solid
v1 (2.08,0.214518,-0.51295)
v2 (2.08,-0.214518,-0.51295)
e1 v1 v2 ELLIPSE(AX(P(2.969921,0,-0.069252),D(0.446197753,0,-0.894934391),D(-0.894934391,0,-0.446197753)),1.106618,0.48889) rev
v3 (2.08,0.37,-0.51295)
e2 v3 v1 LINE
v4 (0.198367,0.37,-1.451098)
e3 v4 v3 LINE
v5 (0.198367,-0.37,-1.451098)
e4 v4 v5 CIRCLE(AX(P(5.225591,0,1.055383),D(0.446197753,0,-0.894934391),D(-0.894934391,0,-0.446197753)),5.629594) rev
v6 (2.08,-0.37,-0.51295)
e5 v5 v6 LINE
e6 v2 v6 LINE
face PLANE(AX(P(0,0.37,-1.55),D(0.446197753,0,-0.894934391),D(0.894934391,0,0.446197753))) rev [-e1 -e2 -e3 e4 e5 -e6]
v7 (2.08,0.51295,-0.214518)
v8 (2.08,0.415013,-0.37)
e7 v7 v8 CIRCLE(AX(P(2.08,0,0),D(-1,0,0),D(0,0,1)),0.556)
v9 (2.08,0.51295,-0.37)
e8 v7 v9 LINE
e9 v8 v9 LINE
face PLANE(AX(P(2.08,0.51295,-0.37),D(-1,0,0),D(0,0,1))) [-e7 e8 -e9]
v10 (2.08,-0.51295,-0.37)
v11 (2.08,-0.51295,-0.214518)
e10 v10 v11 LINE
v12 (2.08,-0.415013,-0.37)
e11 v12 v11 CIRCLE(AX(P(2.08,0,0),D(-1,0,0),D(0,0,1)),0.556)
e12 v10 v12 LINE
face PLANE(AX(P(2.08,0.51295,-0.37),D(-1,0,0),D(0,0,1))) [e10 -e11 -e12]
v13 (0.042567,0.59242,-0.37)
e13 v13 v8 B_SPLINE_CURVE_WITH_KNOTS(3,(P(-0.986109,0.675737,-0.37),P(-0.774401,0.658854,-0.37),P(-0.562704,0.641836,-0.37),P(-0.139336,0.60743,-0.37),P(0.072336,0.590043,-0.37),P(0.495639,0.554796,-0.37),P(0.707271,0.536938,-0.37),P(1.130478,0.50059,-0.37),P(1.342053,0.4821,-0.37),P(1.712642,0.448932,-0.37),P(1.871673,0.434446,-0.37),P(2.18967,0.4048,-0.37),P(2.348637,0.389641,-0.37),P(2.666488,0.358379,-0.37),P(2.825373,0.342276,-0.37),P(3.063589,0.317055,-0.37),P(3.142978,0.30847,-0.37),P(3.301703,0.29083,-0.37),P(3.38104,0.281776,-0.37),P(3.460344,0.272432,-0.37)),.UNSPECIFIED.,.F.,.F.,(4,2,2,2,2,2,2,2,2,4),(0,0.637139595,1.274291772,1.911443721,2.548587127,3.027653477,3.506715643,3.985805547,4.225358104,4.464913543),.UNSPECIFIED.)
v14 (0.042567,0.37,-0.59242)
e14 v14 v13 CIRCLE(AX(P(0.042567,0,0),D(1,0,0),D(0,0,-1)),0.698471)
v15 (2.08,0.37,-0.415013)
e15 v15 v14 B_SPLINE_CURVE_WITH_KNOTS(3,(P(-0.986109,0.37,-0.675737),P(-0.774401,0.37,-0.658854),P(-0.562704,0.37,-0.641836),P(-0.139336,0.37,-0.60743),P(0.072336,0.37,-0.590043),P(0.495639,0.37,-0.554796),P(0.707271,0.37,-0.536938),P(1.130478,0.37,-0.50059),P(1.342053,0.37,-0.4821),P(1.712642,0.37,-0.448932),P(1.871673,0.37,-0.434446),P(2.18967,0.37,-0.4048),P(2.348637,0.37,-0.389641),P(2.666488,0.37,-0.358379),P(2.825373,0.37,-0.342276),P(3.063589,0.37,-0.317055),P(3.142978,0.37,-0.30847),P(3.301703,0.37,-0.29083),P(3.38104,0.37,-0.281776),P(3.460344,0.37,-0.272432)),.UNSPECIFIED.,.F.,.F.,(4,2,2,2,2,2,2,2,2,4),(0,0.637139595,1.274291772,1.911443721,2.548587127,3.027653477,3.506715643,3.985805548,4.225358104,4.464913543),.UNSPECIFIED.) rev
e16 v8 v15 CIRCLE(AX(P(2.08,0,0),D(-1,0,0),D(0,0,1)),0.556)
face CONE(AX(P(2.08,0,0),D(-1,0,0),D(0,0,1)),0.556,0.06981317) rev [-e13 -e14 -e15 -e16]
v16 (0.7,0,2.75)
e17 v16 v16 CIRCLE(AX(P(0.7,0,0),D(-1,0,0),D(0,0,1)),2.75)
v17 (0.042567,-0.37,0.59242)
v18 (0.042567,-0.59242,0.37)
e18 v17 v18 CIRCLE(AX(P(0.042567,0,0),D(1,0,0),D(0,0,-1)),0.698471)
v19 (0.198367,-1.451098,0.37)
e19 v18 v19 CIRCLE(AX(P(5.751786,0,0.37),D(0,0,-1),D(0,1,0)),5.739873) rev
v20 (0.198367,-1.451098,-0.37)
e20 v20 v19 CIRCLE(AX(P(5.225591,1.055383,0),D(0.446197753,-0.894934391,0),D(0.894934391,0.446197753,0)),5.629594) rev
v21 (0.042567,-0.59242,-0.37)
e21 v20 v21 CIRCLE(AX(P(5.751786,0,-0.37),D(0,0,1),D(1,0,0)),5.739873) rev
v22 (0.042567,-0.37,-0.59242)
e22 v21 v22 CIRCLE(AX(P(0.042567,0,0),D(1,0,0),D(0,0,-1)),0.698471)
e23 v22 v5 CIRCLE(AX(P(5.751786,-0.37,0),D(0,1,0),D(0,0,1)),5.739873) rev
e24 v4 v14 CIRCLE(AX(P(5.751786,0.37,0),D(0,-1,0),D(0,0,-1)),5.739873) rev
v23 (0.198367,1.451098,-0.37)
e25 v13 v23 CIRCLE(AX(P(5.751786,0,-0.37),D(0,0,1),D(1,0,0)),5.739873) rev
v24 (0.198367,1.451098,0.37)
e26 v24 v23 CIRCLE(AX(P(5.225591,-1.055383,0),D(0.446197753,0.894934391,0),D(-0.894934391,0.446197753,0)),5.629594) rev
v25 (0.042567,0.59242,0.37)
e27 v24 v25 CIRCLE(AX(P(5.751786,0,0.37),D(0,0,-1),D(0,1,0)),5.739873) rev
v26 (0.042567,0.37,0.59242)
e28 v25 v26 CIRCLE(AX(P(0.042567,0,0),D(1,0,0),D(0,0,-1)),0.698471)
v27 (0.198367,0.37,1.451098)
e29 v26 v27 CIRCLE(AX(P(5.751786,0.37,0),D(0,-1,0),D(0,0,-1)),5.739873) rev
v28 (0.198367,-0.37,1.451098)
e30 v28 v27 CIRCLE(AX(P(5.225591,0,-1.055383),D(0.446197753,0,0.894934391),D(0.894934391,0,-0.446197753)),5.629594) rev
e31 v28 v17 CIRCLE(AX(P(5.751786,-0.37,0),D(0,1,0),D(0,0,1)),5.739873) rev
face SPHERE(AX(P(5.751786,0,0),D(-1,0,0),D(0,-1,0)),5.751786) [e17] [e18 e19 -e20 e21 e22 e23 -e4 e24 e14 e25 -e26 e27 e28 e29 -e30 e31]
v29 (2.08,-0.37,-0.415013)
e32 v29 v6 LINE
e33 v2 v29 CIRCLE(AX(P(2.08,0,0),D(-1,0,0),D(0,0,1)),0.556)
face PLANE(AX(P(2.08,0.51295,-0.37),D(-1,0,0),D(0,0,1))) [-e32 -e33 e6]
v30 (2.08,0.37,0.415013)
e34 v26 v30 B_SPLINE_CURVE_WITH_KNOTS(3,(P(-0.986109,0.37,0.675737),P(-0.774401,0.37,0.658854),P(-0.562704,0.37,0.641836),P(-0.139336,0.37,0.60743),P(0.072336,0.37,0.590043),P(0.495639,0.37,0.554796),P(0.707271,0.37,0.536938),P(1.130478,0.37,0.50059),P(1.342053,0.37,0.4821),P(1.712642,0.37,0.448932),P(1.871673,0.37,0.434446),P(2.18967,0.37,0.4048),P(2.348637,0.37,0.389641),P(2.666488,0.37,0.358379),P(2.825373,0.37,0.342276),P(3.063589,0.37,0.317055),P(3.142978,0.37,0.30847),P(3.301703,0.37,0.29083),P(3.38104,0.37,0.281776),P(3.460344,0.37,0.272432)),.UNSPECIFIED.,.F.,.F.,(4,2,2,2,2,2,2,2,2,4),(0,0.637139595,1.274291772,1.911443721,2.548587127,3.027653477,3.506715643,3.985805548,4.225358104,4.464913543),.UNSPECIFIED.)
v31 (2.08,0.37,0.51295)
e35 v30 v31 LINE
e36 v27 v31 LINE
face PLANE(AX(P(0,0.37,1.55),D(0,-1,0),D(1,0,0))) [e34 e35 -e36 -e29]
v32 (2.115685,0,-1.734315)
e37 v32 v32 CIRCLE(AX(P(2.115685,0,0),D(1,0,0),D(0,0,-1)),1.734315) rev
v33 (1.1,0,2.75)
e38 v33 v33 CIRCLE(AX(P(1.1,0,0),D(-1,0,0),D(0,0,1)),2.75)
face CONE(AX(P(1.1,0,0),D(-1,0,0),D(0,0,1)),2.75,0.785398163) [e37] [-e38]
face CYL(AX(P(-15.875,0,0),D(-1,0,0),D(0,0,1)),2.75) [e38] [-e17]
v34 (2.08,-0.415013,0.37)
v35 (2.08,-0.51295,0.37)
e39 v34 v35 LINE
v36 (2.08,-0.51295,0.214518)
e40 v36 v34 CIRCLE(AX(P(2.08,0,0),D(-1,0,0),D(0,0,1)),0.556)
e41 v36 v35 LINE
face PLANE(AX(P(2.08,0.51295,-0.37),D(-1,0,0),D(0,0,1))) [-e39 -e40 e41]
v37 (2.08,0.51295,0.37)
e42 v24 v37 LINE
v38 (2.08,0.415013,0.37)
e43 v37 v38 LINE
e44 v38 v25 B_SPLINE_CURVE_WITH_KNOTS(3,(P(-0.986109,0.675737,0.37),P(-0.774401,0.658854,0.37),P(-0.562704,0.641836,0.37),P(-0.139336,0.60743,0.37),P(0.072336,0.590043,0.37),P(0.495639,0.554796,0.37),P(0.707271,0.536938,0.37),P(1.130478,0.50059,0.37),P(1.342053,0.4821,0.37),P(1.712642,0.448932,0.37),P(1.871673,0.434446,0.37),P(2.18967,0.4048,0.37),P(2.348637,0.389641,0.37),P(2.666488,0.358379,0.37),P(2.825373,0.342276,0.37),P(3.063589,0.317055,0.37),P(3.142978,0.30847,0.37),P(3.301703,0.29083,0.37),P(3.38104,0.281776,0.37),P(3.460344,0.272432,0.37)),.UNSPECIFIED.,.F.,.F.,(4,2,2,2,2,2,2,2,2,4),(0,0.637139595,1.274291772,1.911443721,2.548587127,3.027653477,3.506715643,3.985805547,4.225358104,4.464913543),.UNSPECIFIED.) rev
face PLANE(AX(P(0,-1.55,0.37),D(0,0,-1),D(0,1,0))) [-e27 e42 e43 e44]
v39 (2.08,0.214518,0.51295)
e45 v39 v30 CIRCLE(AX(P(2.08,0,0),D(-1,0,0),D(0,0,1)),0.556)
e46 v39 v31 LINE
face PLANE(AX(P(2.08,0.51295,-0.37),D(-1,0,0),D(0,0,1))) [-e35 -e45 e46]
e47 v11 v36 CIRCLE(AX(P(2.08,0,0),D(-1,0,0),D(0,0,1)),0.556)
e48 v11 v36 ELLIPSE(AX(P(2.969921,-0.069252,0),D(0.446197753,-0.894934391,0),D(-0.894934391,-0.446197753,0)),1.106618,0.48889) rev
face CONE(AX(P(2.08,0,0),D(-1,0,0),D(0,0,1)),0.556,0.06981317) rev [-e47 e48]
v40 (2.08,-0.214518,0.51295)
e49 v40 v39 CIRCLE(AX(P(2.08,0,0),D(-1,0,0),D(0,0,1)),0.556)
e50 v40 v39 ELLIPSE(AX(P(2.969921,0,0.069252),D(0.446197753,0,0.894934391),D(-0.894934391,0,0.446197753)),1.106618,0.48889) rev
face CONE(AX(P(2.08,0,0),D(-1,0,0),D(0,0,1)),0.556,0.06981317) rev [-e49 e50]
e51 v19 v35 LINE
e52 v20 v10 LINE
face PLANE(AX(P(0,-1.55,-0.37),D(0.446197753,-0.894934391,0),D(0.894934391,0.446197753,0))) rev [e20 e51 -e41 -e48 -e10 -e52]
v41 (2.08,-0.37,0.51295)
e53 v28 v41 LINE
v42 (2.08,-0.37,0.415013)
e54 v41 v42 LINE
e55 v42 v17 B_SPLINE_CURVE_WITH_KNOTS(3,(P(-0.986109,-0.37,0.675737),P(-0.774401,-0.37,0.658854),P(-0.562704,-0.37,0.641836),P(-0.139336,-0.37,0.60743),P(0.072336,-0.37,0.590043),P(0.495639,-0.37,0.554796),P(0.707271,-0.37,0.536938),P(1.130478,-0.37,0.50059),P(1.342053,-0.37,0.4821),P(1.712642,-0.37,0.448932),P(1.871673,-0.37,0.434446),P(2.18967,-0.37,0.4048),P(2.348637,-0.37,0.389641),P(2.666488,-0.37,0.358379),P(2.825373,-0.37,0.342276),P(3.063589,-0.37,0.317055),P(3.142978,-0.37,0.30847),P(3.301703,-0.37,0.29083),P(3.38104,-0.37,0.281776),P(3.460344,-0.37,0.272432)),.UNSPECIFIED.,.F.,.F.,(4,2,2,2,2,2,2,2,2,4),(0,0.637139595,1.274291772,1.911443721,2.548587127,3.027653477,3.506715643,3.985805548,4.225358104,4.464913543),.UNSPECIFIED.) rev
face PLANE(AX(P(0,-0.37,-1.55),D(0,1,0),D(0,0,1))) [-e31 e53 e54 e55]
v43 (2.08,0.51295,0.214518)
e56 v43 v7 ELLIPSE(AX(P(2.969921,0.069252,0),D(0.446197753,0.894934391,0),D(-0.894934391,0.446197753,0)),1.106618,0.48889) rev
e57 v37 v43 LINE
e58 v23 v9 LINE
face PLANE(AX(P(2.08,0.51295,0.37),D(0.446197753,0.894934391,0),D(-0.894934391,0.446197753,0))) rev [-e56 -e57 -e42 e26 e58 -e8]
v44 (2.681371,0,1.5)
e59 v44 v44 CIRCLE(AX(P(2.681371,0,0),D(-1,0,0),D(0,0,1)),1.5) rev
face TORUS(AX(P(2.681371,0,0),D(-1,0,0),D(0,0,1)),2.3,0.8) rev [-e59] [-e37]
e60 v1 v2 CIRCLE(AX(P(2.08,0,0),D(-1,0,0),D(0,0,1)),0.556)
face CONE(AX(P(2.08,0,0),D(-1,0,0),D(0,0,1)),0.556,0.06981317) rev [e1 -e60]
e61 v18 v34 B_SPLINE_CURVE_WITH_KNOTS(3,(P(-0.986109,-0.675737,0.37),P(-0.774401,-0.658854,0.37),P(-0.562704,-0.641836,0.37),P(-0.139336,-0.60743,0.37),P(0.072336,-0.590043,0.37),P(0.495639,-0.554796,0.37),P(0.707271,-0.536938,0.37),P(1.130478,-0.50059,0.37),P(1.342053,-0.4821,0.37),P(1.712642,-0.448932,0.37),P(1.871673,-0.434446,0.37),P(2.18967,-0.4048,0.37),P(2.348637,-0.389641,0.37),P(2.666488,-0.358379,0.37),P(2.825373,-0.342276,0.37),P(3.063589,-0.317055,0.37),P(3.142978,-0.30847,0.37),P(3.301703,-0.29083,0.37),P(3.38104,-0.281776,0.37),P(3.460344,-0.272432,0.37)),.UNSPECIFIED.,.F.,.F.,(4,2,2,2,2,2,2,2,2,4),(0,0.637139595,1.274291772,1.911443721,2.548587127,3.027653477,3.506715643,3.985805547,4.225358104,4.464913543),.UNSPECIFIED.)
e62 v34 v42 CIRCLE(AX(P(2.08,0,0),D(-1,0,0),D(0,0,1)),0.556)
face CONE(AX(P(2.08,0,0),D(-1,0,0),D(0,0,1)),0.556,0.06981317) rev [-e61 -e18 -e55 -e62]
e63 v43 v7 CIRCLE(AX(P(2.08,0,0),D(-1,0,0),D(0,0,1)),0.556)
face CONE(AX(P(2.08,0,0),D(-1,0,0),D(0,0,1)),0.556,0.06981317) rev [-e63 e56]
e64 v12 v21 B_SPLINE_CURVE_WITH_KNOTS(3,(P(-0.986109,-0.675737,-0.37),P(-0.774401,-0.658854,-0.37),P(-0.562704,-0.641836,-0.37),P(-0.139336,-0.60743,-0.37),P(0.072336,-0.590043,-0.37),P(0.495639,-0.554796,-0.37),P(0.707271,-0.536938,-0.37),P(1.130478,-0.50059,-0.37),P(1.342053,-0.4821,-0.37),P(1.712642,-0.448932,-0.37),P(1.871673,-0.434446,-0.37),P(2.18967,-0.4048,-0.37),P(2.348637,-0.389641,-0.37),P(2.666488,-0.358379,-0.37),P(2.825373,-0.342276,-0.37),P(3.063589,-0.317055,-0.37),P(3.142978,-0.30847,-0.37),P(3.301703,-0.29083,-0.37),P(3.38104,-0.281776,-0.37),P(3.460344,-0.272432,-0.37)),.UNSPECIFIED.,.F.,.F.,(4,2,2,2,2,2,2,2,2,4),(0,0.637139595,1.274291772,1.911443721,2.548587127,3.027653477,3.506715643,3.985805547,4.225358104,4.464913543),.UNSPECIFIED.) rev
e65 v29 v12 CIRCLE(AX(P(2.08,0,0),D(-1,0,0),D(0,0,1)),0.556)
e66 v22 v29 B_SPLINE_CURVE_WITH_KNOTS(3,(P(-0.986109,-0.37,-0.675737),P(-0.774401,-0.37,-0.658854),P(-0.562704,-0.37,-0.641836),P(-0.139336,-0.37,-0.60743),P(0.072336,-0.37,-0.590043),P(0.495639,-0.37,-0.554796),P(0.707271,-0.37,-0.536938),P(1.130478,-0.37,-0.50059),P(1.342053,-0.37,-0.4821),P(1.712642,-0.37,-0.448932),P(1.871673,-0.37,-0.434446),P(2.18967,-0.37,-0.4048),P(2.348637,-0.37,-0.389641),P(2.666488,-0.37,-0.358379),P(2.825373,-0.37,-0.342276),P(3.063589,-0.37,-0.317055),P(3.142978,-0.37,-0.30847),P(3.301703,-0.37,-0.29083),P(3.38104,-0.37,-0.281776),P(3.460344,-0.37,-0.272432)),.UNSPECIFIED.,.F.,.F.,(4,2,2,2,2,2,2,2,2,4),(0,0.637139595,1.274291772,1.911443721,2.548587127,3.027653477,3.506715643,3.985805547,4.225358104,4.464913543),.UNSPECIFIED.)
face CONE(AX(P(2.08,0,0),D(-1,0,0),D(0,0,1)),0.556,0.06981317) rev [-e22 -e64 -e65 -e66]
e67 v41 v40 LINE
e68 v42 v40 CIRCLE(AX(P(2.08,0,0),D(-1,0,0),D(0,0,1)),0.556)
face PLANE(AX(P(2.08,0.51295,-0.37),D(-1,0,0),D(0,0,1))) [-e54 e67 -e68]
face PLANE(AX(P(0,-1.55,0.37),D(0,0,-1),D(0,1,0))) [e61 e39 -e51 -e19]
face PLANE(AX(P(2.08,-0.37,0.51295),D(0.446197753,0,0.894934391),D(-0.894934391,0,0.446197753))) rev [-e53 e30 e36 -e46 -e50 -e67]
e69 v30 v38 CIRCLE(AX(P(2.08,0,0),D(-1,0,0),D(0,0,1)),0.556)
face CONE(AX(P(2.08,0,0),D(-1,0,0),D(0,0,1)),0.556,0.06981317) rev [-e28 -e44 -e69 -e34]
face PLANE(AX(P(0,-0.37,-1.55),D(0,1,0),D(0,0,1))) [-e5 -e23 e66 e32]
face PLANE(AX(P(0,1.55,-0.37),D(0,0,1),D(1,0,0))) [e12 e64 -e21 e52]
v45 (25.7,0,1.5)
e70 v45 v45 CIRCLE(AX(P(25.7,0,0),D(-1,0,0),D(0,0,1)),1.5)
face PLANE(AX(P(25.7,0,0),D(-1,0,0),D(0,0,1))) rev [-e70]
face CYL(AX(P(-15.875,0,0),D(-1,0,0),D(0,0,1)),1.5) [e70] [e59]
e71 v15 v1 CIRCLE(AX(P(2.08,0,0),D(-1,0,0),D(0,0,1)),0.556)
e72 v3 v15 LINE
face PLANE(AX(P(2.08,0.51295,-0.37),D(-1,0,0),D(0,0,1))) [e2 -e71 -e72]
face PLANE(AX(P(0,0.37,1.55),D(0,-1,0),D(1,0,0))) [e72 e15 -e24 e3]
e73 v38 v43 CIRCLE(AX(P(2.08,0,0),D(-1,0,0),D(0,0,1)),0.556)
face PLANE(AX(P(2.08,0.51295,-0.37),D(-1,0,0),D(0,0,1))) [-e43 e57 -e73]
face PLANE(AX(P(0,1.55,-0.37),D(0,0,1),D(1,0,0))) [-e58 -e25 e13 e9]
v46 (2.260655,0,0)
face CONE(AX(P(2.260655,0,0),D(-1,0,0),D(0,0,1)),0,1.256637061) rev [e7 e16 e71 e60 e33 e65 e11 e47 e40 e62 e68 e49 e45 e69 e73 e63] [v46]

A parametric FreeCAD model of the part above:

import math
import FreeCAD as App
import Part
import Sketcher

V = App.Vector
Q = App.Units.Quantity


def edges_at(feature, points):
    """Names of the edges that pass closest to the given points."""
    edges = feature.Shape.Edges
    near = lambda p: min(range(len(edges)), key=lambda i: edges[i].distToShape(Part.Vertex(*p))[0])
    return sorted({f"Edge{near(p) + 1}" for p in points})


def add_polygon(sketch, points):
    """Adds a closed chain of lines whose ends are joined by coincident constraints."""
    first, n = sketch.GeometryCount, len(points)
    for a, b in zip(points, points[1:] + points[:1]):
        sketch.addGeometry(Part.LineSegment(App.Vector(*a, 0), App.Vector(*b, 0)), False)
    for i in range(n):
        sketch.addConstraint(Sketcher.Constraint("Coincident", first + i, 2, first + (i + 1) % n, 1))

doc = App.newDocument("Part")
body = doc.addObject("PartDesign::Body", "Body")

# Sketch on XY plane
sketch1 = body.newObject("Sketcher::SketchObject", "Sketch")
sketch1.AttachmentSupport = (doc.getObject("XY_Plane"), [""])
sketch1.MapMode = "FlatFace"
sketch1.addGeometry(Part.LineSegment(V(0, 0, 0), V(25.7, 0, 0)), False)
sketch1.addGeometry(Part.LineSegment(V(25.7, 0, 0), V(25.7, 1.5, 0)), False)
sketch1.addGeometry(Part.LineSegment(V(25.7, 1.5, 0), V(2.35, 1.5, 0)), False)
sketch1.addGeometry(Part.LineSegment(V(2.35, 1.5, 0), V(1.1, 2.75, 0)), False)
sketch1.addGeometry(Part.LineSegment(V(1.1, 2.75, 0), V(0.7, 2.75, 0)), False)
sketch1.addGeometry(Part.ArcOfCircle(Part.Circle(V(5.75, 0, 0), V(0, 0, 1), 5.75), math.radians(151), math.radians(180)), False)
sketch1.addConstraint(Sketcher.Constraint("Coincident", 0, 2, 1, 1))
sketch1.addConstraint(Sketcher.Constraint("Coincident", 1, 2, 2, 1))
sketch1.addConstraint(Sketcher.Constraint("Coincident", 2, 2, 3, 1))
sketch1.addConstraint(Sketcher.Constraint("Coincident", 3, 2, 4, 1))
sketch1.addConstraint(Sketcher.Constraint("Coincident", 4, 2, 5, 1))
sketch1.addConstraint(Sketcher.Constraint("Coincident", 5, 2, 0, 1))
sketch1.addConstraint(Sketcher.Constraint("Horizontal", 0))
sketch1.addConstraint(Sketcher.Constraint("Vertical", 1))
sketch1.addConstraint(Sketcher.Constraint("Horizontal", 2))
sketch1.addConstraint(Sketcher.Constraint("Horizontal", 4))
sketch1.addConstraint(Sketcher.Constraint("Coincident", 5, 2, -1, 1))
sketch1.addConstraint(Sketcher.Constraint("PointOnObject", 5, 3, -1))
sketch1.addConstraint(Sketcher.Constraint("Angle", 3, Q("135 deg")))
sketch1.addConstraint(Sketcher.Constraint("DistanceX", 0, 1, 0, 2, Q("25.7 mm")))
sketch1.addConstraint(Sketcher.Constraint("DistanceX", 4, 2, 4, 1, Q("0.4 mm")))
sketch1.addConstraint(Sketcher.Constraint("DistanceY", 1, 1, 1, 2, Q("1.5 mm")))
sketch1.addConstraint(Sketcher.Constraint("DistanceX", 4, 2, 1, 2, Q("25 mm")))
sketch1.addConstraint(Sketcher.Constraint("DistanceX", 2, 2, 2, 1, Q("23.35 mm")))
revolution = body.newObject("PartDesign::Revolution", "Revolution")
revolution.Profile = sketch1
revolution.ReferenceAxis = (sketch1, ["H_Axis"])
revolution.Angle = 360
doc.recompute()

fillet = body.newObject("PartDesign::Fillet", "Fillet")
fillet.Base = (revolution, edges_at(revolution, [(2.35, 0, -1.5)]))
fillet.Radius = 0.8

# Sketch on YZ plane
sketch2 = body.newObject("Sketcher::SketchObject", "Sketch001")
sketch2.AttachmentSupport = (doc.getObject("YZ_Plane"), [""])
sketch2.MapMode = "FlatFace"
add_polygon(sketch2, [(-1.6, 0.4), (-1.6, -0.4), (1.6, -0.4), (1.6, 0.4)])  # lines 0-3
sketch2.addConstraint(Sketcher.Constraint("Vertical", 0))
sketch2.addConstraint(Sketcher.Constraint("Horizontal", 1))
sketch2.addConstraint(Sketcher.Constraint("Vertical", 2))
sketch2.addConstraint(Sketcher.Constraint("Horizontal", 3))
sketch2.addConstraint(Sketcher.Constraint("Symmetric", 0, 2, 2, 2, -1, 1))
sketch2.addConstraint(Sketcher.Constraint("DistanceX", 1, 1, 1, 2, Q("3.1 mm")))
sketch2.addConstraint(Sketcher.Constraint("DistanceY", 0, 2, 0, 1, Q("0.74 mm")))

# Sketch on YZ plane
sketch3 = body.newObject("Sketcher::SketchObject", "Sketch002")
sketch3.AttachmentSupport = (doc.getObject("YZ_Plane"), [""])
sketch3.MapMode = "FlatFace"
sketch3.AttachmentOffset = App.Placement(V(0, 0, 2.08), App.Rotation())
add_polygon(sketch3, [(-0.5, 0.4), (-0.5, -0.4), (0.5, -0.4), (0.5, 0.4)])  # lines 0-3
sketch3.addConstraint(Sketcher.Constraint("Vertical", 0))
sketch3.addConstraint(Sketcher.Constraint("Horizontal", 1))
sketch3.addConstraint(Sketcher.Constraint("Vertical", 2))
sketch3.addConstraint(Sketcher.Constraint("Horizontal", 3))
sketch3.addConstraint(Sketcher.Constraint("Symmetric", 0, 2, 2, 2, -1, 1))
sketch3.addConstraint(Sketcher.Constraint("DistanceY", 0, 2, 0, 1, Q("0.74 mm")))
sketch3.addConstraint(Sketcher.Constraint("DistanceX", 1, 1, 1, 2, Q("1.025901 mm")))

subtractiveloft = body.newObject("PartDesign::SubtractiveLoft", "SubtractiveLoft")
subtractiveloft.Profile = sketch2
subtractiveloft.Sections = [sketch3]
doc.recompute()

polarpattern = body.newObject("PartDesign::PolarPattern", "PolarPattern")
polarpattern.Originals = [subtractiveloft]
polarpattern.Axis = (doc.getObject("X_Axis"), [""])
polarpattern.Angle = 90
polarpattern.Occurrences = 2
body.Tip = polarpattern

# Sketch on XY plane
sketch4 = body.newObject("Sketcher::SketchObject", "Sketch003")
sketch4.AttachmentSupport = (doc.getObject("XY_Plane"), [""])
sketch4.MapMode = "FlatFace"
add_polygon(sketch4, [(0, 0.7), (0, 0), (2.3, 0), (2.1, 0.6)])  # lines 0-3
sketch4.addConstraint(Sketcher.Constraint("Vertical", 0))
sketch4.addConstraint(Sketcher.Constraint("Horizontal", 1))
sketch4.addConstraint(Sketcher.Constraint("Coincident", 0, 2, -1, 1))
sketch4.addConstraint(Sketcher.Constraint("Angle", 2, Q("108 deg")))
sketch4.addConstraint(Sketcher.Constraint("Angle", 3, Q("176 deg")))
sketch4.addConstraint(Sketcher.Constraint("DistanceX", -1, 1, 2, 2, Q("2.08 mm")))
sketch4.addConstraint(Sketcher.Constraint("DistanceY", -1, 1, 2, 2, Q("0.556 mm")))
groove = body.newObject("PartDesign::Groove", "Groove")
groove.Profile = sketch4
groove.ReferenceAxis = (sketch4, ["H_Axis"])
groove.Angle = 360

doc.recompute()
